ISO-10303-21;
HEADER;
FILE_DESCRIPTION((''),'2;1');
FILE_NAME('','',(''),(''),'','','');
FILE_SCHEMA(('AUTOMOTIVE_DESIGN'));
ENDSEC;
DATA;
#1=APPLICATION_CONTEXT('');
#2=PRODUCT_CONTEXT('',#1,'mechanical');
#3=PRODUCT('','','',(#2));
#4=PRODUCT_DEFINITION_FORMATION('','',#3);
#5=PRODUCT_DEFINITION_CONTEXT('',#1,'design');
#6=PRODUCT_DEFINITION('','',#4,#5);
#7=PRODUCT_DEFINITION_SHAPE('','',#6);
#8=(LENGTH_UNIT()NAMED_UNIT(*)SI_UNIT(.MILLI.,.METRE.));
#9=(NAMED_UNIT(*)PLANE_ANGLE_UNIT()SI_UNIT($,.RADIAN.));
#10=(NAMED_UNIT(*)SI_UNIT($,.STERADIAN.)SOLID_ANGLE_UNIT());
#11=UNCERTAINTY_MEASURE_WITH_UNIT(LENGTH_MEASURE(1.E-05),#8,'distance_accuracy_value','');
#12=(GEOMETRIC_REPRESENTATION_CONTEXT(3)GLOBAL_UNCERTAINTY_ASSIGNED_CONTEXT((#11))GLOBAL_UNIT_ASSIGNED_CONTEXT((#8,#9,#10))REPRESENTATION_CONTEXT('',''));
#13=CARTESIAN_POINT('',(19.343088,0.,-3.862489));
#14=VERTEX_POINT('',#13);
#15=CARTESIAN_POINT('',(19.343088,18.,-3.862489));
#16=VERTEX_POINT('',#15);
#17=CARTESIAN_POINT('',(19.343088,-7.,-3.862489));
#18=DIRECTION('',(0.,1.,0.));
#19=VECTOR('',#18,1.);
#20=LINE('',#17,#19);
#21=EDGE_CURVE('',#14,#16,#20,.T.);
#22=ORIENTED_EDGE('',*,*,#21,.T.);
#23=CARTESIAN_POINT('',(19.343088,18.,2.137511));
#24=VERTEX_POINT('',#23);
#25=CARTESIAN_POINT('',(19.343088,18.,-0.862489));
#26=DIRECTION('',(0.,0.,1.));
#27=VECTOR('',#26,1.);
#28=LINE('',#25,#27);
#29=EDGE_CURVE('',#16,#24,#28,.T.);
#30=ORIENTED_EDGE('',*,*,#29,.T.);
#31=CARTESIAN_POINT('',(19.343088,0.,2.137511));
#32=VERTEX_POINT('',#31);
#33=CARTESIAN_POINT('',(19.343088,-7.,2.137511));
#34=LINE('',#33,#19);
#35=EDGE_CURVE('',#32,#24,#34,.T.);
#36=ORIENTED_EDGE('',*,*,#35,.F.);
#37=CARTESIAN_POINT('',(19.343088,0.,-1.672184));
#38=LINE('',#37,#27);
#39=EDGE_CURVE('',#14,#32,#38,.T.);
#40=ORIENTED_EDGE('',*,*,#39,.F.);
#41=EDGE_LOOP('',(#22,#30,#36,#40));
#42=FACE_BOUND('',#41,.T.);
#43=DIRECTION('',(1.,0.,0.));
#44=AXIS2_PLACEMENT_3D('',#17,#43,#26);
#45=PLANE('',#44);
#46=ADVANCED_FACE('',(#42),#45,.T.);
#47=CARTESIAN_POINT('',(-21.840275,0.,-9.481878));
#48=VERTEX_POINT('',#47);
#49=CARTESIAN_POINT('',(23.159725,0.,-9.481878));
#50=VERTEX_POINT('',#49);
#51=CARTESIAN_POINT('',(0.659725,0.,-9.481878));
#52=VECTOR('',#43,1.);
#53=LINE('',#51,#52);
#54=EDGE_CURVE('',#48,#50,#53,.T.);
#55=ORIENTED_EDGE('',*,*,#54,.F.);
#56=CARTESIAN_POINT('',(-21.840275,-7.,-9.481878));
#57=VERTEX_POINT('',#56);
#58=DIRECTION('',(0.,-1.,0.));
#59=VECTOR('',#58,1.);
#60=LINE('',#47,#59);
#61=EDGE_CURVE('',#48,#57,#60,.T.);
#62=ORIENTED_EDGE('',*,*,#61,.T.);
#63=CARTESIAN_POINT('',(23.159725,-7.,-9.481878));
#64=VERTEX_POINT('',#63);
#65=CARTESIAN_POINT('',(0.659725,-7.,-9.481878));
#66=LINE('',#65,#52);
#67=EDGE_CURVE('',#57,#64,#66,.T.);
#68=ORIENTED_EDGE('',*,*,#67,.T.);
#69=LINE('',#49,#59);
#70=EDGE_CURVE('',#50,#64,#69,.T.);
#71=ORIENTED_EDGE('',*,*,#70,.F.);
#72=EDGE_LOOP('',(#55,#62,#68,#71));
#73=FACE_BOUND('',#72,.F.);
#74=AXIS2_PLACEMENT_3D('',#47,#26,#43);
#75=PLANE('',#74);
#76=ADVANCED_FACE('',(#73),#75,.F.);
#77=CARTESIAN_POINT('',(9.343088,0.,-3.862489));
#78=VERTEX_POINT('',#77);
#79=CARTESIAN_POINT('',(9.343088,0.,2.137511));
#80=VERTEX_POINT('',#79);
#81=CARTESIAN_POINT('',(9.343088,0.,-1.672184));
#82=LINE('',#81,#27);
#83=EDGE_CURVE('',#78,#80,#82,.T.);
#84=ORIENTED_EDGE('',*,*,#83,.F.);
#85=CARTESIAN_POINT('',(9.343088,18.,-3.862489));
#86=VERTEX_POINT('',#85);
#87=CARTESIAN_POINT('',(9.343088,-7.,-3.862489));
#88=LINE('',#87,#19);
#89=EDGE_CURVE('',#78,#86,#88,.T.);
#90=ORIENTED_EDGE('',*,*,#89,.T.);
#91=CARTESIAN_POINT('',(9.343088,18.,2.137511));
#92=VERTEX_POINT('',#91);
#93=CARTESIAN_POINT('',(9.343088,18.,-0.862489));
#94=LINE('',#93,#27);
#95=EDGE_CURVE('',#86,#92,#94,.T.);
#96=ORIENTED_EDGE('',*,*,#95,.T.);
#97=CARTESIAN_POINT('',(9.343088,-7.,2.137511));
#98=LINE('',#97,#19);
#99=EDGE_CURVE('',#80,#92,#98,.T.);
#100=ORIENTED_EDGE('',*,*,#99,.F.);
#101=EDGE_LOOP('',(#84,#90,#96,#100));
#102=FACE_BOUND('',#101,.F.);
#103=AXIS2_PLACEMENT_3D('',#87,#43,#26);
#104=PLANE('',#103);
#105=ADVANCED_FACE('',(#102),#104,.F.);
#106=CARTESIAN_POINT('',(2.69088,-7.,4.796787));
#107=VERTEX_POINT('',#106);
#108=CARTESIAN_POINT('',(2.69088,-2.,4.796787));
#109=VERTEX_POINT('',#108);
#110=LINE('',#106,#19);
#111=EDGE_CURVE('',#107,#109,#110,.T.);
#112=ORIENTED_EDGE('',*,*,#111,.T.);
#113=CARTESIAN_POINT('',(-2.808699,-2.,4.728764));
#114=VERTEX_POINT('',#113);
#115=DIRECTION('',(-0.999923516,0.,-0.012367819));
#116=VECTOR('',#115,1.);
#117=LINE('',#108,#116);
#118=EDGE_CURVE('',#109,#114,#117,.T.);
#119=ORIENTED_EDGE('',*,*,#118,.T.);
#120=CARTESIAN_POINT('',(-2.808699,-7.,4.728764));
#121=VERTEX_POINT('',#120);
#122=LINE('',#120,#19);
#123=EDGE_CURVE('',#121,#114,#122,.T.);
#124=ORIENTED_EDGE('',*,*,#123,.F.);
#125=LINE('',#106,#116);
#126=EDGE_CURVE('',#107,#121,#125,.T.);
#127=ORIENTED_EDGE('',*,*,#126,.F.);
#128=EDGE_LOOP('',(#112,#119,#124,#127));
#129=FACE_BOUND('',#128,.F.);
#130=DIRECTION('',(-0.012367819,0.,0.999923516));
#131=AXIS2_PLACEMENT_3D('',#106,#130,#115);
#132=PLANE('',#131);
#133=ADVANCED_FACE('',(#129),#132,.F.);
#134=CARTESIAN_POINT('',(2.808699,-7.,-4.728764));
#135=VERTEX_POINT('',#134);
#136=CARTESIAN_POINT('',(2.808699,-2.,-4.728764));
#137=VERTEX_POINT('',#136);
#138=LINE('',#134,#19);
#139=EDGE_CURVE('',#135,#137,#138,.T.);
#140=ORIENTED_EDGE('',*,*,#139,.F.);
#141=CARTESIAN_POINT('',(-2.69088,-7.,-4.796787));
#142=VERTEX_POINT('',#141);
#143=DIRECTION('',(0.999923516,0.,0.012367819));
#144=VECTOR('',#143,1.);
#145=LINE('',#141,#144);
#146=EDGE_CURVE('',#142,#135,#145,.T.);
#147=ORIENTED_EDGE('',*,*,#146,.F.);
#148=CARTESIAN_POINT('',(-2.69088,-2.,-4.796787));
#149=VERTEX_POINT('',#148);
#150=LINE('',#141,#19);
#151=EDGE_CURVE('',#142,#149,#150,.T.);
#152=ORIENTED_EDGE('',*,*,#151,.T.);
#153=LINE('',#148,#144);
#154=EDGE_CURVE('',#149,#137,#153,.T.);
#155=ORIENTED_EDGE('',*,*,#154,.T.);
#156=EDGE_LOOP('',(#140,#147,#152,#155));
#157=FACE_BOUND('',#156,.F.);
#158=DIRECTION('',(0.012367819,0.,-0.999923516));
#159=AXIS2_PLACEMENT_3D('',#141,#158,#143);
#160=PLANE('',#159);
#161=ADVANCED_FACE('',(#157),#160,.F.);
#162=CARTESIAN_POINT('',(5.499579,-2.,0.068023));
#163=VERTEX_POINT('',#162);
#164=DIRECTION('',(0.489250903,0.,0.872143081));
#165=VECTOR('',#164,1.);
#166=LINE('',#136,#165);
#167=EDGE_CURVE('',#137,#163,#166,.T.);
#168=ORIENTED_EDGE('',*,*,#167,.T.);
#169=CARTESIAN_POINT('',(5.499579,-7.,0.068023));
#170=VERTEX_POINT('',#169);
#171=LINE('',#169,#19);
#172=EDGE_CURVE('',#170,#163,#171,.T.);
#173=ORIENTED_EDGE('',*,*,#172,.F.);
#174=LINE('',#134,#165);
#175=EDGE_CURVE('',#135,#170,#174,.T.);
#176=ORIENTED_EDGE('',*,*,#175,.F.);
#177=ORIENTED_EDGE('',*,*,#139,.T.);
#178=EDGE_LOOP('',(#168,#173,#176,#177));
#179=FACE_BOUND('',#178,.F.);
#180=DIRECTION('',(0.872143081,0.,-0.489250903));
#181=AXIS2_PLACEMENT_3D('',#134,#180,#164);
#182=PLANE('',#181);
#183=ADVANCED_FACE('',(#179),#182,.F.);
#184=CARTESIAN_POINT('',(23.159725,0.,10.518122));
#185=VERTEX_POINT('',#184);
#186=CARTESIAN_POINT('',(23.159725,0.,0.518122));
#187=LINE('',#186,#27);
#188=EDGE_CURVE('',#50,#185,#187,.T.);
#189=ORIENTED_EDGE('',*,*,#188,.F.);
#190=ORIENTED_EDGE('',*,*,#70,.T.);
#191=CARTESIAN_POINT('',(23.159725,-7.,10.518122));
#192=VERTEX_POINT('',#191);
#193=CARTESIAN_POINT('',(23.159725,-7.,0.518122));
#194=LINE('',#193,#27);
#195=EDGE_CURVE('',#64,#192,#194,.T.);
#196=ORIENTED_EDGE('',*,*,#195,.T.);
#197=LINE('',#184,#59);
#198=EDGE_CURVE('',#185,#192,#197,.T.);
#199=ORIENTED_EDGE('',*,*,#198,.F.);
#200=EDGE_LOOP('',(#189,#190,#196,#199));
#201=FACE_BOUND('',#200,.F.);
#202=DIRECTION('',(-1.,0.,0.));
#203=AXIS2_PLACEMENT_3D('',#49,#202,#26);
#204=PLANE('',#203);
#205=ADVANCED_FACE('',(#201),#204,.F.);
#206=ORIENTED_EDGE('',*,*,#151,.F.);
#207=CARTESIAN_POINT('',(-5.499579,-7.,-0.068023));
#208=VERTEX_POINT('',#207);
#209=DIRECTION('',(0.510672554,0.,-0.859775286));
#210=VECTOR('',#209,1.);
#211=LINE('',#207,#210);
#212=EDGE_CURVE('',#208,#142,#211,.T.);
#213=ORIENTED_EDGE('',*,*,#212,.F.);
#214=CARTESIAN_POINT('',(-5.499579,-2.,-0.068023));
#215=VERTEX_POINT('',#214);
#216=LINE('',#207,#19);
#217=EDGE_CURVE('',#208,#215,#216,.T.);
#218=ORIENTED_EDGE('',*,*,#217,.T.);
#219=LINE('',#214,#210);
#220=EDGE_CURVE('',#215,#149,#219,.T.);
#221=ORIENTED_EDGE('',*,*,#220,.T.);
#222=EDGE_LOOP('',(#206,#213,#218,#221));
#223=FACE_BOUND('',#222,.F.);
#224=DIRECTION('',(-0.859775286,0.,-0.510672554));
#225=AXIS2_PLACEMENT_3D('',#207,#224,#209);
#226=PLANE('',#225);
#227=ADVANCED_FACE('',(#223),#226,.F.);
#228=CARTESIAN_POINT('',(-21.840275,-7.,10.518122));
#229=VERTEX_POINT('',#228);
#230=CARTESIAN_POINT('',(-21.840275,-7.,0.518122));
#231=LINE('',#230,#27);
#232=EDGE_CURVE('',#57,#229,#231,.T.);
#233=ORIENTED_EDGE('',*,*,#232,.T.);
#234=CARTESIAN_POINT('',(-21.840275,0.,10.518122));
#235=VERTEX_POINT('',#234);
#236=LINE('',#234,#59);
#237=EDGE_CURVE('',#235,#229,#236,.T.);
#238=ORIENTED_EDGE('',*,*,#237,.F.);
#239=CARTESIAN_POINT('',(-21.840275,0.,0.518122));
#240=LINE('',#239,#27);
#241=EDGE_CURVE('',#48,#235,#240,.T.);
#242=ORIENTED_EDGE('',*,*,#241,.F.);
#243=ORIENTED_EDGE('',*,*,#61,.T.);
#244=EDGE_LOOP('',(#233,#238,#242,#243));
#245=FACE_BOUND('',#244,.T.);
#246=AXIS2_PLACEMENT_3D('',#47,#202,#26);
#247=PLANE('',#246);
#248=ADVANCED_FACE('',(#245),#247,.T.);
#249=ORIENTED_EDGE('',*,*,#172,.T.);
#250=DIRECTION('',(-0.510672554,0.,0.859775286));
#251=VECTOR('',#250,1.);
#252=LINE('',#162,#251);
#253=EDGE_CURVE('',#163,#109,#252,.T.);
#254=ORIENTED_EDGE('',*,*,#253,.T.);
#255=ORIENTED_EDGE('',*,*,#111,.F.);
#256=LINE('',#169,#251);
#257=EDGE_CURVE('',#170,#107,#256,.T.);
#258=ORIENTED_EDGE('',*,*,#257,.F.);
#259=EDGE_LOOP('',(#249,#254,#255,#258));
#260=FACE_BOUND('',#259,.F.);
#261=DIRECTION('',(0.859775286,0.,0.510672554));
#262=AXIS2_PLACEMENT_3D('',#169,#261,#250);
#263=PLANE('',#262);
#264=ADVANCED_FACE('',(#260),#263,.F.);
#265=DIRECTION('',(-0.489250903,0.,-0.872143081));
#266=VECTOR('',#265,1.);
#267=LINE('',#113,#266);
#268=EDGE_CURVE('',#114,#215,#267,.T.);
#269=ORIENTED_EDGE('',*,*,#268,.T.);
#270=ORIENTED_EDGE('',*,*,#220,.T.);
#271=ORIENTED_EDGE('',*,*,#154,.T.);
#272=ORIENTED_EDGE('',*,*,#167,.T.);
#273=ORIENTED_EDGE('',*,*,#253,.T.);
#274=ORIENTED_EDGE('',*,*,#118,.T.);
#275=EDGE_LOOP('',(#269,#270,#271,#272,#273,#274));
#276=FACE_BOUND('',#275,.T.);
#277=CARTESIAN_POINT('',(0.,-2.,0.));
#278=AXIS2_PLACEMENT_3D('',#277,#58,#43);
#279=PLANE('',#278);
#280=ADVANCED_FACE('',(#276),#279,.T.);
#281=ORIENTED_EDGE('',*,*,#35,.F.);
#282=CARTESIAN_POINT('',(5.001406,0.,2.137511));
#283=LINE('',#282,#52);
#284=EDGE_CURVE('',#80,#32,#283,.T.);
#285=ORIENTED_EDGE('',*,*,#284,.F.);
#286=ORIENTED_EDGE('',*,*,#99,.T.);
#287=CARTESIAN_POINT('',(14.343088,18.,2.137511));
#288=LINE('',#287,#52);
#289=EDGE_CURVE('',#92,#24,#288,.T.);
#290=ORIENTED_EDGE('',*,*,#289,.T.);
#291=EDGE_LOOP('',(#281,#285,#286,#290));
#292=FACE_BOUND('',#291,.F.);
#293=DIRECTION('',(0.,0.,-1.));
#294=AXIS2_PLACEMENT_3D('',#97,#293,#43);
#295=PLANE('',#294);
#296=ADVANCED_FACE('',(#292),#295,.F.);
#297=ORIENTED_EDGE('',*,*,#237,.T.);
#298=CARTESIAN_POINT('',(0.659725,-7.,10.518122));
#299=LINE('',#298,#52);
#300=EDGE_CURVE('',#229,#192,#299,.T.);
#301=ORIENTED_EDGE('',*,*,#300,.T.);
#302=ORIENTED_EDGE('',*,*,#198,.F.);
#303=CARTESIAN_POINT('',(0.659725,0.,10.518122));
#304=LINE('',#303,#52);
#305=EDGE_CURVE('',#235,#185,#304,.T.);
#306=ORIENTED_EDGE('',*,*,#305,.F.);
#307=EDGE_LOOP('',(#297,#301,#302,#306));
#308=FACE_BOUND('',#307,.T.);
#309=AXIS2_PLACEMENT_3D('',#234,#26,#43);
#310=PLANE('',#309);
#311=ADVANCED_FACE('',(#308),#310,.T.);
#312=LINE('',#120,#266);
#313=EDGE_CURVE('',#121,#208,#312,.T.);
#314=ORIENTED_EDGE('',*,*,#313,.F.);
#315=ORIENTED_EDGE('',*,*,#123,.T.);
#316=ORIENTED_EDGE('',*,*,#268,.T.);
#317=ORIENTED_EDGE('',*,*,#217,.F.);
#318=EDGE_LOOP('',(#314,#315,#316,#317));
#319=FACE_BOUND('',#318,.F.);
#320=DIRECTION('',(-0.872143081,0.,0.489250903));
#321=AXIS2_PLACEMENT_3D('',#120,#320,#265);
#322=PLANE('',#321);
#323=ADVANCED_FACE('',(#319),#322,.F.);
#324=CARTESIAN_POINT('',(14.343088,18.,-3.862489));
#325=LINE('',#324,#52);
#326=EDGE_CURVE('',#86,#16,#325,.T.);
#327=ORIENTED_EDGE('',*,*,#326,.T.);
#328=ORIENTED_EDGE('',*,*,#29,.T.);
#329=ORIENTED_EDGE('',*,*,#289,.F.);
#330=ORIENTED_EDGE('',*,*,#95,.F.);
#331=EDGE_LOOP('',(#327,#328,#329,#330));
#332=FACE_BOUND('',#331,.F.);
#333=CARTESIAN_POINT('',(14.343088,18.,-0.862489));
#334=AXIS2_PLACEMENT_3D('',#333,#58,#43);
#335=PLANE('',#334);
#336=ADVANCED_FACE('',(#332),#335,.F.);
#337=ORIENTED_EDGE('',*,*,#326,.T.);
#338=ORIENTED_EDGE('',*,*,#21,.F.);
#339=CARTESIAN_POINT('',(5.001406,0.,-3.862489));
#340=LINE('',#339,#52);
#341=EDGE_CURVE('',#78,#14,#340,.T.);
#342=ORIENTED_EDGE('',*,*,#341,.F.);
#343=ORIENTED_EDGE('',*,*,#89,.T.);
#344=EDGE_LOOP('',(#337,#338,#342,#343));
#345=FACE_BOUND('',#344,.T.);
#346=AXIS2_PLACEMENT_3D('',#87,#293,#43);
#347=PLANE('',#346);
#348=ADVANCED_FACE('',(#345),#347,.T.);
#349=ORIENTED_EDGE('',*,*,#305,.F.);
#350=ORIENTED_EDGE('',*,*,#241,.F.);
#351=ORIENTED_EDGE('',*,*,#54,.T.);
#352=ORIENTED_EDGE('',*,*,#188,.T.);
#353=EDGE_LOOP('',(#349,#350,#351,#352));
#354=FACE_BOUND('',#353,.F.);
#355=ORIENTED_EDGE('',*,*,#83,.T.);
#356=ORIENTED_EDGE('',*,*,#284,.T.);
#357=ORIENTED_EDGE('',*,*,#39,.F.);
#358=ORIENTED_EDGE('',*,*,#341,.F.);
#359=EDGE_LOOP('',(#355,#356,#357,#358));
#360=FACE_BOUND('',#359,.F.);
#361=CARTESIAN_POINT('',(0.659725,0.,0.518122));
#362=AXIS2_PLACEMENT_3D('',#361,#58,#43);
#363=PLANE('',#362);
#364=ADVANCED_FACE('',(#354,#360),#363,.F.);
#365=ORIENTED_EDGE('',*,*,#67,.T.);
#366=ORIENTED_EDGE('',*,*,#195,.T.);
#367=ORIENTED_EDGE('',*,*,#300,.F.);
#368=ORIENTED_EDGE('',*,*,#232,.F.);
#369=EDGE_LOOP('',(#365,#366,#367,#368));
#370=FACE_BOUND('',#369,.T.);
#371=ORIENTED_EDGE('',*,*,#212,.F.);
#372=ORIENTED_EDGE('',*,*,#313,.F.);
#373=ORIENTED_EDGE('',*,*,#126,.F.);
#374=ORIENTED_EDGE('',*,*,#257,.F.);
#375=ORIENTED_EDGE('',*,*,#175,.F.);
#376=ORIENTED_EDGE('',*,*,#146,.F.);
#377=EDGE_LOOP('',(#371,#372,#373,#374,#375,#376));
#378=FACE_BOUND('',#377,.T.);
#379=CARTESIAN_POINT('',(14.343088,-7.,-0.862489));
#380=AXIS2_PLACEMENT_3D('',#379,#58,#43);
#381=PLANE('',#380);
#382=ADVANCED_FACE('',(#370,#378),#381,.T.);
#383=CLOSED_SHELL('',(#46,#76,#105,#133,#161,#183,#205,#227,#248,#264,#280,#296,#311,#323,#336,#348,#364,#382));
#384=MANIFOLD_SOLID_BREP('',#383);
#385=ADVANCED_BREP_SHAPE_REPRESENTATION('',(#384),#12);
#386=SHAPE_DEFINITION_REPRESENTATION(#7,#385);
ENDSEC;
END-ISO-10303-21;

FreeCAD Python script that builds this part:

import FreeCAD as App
import Part
import Sketcher

doc = App.newDocument("Part")
body = doc.addObject("PartDesign::Body", "Body")

# Sketch on XZ plane
sketch1 = doc.addObject("Sketcher::SketchObject", "Sketch")
body.addObject(sketch1)
sketch1.AttachmentSupport = (doc.XZ_Plane, [""])
sketch1.MapMode = "FlatFace"
sketch1.addGeometry(Part.LineSegment(App.Vector(-22, 11, 0), App.Vector(-22, -9, 0)), False)
sketch1.addGeometry(Part.LineSegment(App.Vector(-22, -9, 0), App.Vector(23, -9, 0)), False)
sketch1.addGeometry(Part.LineSegment(App.Vector(23, -9, 0), App.Vector(23, 11, 0)), False)
sketch1.addGeometry(Part.LineSegment(App.Vector(23, 11, 0), App.Vector(-22, 11, 0)), False)
sketch1.addConstraint(Sketcher.Constraint("Coincident", 0, 2, 1, 1))
sketch1.addConstraint(Sketcher.Constraint("Coincident", 1, 2, 2, 1))
sketch1.addConstraint(Sketcher.Constraint("Coincident", 2, 2, 3, 1))
sketch1.addConstraint(Sketcher.Constraint("Coincident", 3, 2, 0, 1))
sketch1.addConstraint(Sketcher.Constraint("Vertical", 0))
sketch1.addConstraint(Sketcher.Constraint("Horizontal", 1))
sketch1.addConstraint(Sketcher.Constraint("Vertical", 2))
sketch1.addConstraint(Sketcher.Constraint("Horizontal", 3))
sketch1.addConstraint(Sketcher.Constraint("DistanceX", 1, 1, 1, 2, 45.0))
sketch1.addConstraint(Sketcher.Constraint("DistanceY", 0, 2, 0, 1, 20.0))
sketch1.addConstraint(Sketcher.Constraint("DistanceX", 0, 2, -1, 1, 21.840275))
sketch1.addConstraint(Sketcher.Constraint("DistanceY", 0, 2, -1, 1, 9.481878))
pad1 = doc.addObject("PartDesign::Pad", "Pad")
body.addObject(pad1)
pad1.Profile = sketch1
pad1.Length = 7

# Sketch on XZ plane
sketch2 = doc.addObject("Sketcher::SketchObject", "Sketch001")
body.addObject(sketch2)
sketch2.AttachmentSupport = (doc.XZ_Plane, [""])
sketch2.MapMode = "FlatFace"
sketch2.AttachmentOffset = App.Placement(App.Vector(0, 0, 7), App.Rotation())
sketch2.addGeometry(Part.LineSegment(App.Vector(-3, 5, 0), App.Vector(-5, 0, 0)), False)
sketch2.addGeometry(Part.LineSegment(App.Vector(-5, 0, 0), App.Vector(-3, -5, 0)), False)
sketch2.addGeometry(Part.LineSegment(App.Vector(-3, -5, 0), App.Vector(3, -5, 0)), False)
sketch2.addGeometry(Part.LineSegment(App.Vector(3, -5, 0), App.Vector(5, 0, 0)), False)
sketch2.addGeometry(Part.LineSegment(App.Vector(5, 0, 0), App.Vector(3, 5, 0)), False)
sketch2.addGeometry(Part.LineSegment(App.Vector(3, 5, 0), App.Vector(-3, 5, 0)), False)
sketch2.addConstraint(Sketcher.Constraint("Coincident", 0, 2, 1, 1))
sketch2.addConstraint(Sketcher.Constraint("Coincident", 1, 2, 2, 1))
sketch2.addConstraint(Sketcher.Constraint("Coincident", 2, 2, 3, 1))
sketch2.addConstraint(Sketcher.Constraint("Coincident", 3, 2, 4, 1))
sketch2.addConstraint(Sketcher.Constraint("Coincident", 4, 2, 5, 1))
sketch2.addConstraint(Sketcher.Constraint("Coincident", 5, 2, 0, 1))
sketch2.addConstraint(Sketcher.Constraint("Symmetric", 0, 2, 3, 2, -1, 1))
sketch2.addConstraint(Sketcher.Constraint("Symmetric", 1, 2, 4, 2, -1, 1))
sketch2.addConstraint(Sketcher.Constraint("Symmetric", 2, 2, 5, 2, -1, 1))
sketch2.addConstraint(Sketcher.Constraint("Equal", 0, 1))
sketch2.addConstraint(Sketcher.Constraint("Equal", 1, 2))
sketch2.addConstraint(Sketcher.Constraint("Distance", 0, 5.5))
sketch2.addConstraint(Sketcher.Constraint("DistanceX", -1, 1, 2, 2, 2.808699))
sketch2.addConstraint(Sketcher.Constraint("DistanceX", 0, 2, 1, 2, 2.808699))
sketch2.addConstraint(Sketcher.Constraint("DistanceX", 0, 2, -1, 1, 5.499579))
pocket1 = doc.addObject("PartDesign::Pocket", "Pocket")
body.addObject(pocket1)
pocket1.Profile = sketch2
pocket1.Length = 5

# Sketch on XZ plane
sketch3 = doc.addObject("Sketcher::SketchObject", "Sketch002")
body.addObject(sketch3)
sketch3.AttachmentSupport = (doc.XZ_Plane, [""])
sketch3.MapMode = "FlatFace"
sketch3.AttachmentOffset = App.Placement(App.Vector(0, 0, 7), App.Rotation())
sketch3.addGeometry(Part.LineSegment(App.Vector(9, 2, 0), App.Vector(9, -4, 0)), False)
sketch3.addGeometry(Part.LineSegment(App.Vector(9, -4, 0), App.Vector(19, -4, 0)), False)
sketch3.addGeometry(Part.LineSegment(App.Vector(19, -4, 0), App.Vector(19, 2, 0)), False)
sketch3.addGeometry(Part.LineSegment(App.Vector(19, 2, 0), App.Vector(9, 2, 0)), False)
sketch3.addConstraint(Sketcher.Constraint("Coincident", 0, 2, 1, 1))
sketch3.addConstraint(Sketcher.Constraint("Coincident", 1, 2, 2, 1))
sketch3.addConstraint(Sketcher.Constraint("Coincident", 2, 2, 3, 1))
sketch3.addConstraint(Sketcher.Constraint("Coincident", 3, 2, 0, 1))
sketch3.addConstraint(Sketcher.Constraint("Vertical", 0))
sketch3.addConstraint(Sketcher.Constraint("Horizontal", 1))
sketch3.addConstraint(Sketcher.Constraint("Vertical", 2))
sketch3.addConstraint(Sketcher.Constraint("Horizontal", 3))
sketch3.addConstraint(Sketcher.Constraint("DistanceX", 1, 1, 1, 2, 10.0))
sketch3.addConstraint(Sketcher.Constraint("DistanceY", 0, 2, 0, 1, 6.0))
sketch3.addConstraint(Sketcher.Constraint("DistanceY", 0, 2, -1, 1, 3.862489))
sketch3.addConstraint(Sketcher.Constraint("DistanceX", -1, 1, 1, 2, 19.343088))
pad2 = doc.addObject("PartDesign::Pad", "Pad001")
body.addObject(pad2)
pad2.Profile = sketch3
pad2.Length = 25
pad2.Reversed = True

doc.recompute()
